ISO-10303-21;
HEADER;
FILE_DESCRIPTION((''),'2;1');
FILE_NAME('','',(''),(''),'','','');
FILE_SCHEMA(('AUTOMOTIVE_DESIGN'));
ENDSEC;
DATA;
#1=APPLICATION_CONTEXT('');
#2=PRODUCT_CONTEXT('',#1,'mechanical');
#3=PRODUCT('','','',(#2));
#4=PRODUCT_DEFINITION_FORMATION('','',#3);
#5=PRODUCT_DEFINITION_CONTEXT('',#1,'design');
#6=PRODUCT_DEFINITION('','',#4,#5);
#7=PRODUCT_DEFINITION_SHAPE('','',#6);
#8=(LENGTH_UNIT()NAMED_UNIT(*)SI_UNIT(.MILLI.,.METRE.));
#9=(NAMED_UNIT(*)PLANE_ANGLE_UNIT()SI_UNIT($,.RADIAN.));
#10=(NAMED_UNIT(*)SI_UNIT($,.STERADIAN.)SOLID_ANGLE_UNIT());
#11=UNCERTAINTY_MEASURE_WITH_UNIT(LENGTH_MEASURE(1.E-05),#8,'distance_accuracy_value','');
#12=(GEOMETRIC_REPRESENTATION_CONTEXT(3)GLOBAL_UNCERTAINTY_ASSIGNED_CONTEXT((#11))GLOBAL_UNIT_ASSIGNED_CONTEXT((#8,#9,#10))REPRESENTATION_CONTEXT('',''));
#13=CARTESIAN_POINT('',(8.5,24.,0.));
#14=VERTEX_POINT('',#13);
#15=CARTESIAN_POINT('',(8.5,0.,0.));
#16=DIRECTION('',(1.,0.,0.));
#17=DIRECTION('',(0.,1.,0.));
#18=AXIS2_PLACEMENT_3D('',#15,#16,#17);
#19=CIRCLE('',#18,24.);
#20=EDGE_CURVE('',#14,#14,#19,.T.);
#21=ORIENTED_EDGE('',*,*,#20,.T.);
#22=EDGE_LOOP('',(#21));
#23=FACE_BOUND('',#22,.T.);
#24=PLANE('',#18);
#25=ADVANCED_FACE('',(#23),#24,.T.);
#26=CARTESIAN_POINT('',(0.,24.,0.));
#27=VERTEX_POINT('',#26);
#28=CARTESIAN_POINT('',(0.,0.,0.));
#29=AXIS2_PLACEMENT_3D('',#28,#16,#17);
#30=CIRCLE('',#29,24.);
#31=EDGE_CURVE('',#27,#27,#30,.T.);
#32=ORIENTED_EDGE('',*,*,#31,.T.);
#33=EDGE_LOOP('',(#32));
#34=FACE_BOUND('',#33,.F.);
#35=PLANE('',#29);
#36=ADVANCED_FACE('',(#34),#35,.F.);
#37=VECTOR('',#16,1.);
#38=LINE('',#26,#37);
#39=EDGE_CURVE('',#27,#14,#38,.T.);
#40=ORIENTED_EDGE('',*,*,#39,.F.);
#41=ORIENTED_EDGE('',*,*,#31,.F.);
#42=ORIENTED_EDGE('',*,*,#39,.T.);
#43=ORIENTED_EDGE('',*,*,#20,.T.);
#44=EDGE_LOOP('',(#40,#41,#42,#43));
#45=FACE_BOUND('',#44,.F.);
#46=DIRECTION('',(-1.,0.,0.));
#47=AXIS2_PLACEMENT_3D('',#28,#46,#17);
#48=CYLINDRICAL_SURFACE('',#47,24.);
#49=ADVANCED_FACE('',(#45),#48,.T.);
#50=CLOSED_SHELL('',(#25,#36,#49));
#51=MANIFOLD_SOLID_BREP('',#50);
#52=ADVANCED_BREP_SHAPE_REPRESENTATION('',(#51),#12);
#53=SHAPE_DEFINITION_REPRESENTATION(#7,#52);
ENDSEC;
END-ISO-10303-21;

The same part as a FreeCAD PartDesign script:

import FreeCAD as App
import Part
import Sketcher

V = App.Vector
Q = App.Units.Quantity

doc = App.newDocument("Part")
params = doc.addObject("Spreadsheet::Sheet", "Params")
for row, (alias, value) in enumerate([
    ("sketch1_diameter", "48 mm"),
    ("pad1_length", "8.5 mm"),
], start=1):
    params.set(f"A{row}", alias)
    params.set(f"B{row}", "=" + value)
    params.setAlias(f"B{row}", alias)

body = doc.addObject("PartDesign::Body", "Body")

# Sketch on YZ plane
sketch1 = body.newObject("Sketcher::SketchObject", "Sketch")
sketch1.AttachmentSupport = (doc.getObject("YZ_Plane"), [""])
sketch1.MapMode = "FlatFace"
sketch1.addGeometry(Part.Circle(V(0, 0, 0), V(0, 0, 1), 24), False)
sketch1.addConstraint(Sketcher.Constraint("Coincident", 0, 3, -1, 1))
sketch1.addConstraint(Sketcher.Constraint("Diameter", 0, Q("48 mm")))
sketch1.setExpression("Constraints[1]", "Params.sketch1_diameter")
pad1 = body.newObject("PartDesign::Pad", "Pad")
pad1.Profile = sketch1
pad1.setExpression("Length", "Params.pad1_length")

doc.recompute()
